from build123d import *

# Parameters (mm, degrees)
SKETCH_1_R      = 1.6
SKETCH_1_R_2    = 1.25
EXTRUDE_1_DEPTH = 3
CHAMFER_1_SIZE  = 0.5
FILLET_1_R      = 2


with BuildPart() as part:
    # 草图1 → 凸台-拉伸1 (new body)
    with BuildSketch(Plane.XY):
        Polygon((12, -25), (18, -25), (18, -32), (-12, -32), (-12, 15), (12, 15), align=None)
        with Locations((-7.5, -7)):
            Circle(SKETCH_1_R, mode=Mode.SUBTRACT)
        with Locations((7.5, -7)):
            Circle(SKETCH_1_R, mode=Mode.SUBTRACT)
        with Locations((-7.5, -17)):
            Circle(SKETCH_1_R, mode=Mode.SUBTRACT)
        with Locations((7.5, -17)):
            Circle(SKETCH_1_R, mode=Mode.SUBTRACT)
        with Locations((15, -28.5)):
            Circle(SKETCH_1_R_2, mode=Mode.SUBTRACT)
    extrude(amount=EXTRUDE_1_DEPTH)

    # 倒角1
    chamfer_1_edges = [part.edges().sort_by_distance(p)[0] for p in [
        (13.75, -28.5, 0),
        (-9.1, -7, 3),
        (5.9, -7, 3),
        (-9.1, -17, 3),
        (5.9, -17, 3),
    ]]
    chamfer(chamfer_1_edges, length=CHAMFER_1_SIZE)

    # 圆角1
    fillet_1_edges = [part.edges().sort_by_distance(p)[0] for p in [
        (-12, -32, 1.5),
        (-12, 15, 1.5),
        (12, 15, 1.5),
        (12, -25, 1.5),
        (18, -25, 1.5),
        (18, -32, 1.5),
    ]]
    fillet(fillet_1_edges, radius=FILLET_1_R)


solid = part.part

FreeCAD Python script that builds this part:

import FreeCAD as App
import Part
import Sketcher


def edges_at(feature, points):
    """Names of the edges that pass closest to the given points."""
    edges = feature.Shape.Edges
    near = lambda p: min(range(len(edges)), key=lambda i: edges[i].distToShape(Part.Vertex(*p))[0])
    return sorted({f"Edge{near(p) + 1}" for p in points})

doc = App.newDocument("Part")
body = doc.addObject("PartDesign::Body", "Body")

sketch1 = body.newObject("Sketcher::SketchObject", "Sketch")
sketch1.AttachmentSupport = (doc.getObject("XY_Plane"), [""])
sketch1.MapMode = "FlatFace"
sketch1.addGeometry(Part.LineSegment(App.Vector(18, -25, 0), App.Vector(12, -25, 0)), False)
sketch1.addGeometry(Part.LineSegment(App.Vector(12, -25, 0), App.Vector(12, 15, 0)), False)
sketch1.addGeometry(Part.LineSegment(App.Vector(12, 15, 0), App.Vector(-12, 15, 0)), False)
sketch1.addGeometry(Part.LineSegment(App.Vector(-12, 15, 0), App.Vector(-12, -32, 0)), False)
sketch1.addGeometry(Part.LineSegment(App.Vector(-12, -32, 0), App.Vector(18, -32, 0)), False)
sketch1.addGeometry(Part.LineSegment(App.Vector(18, -32, 0), App.Vector(18, -25, 0)), False)
sketch1.addGeometry(Part.Circle(App.Vector(15, -28.5, 0), App.Vector(0, 0, 1), 1.25), False)
sketch1.addGeometry(Part.Circle(App.Vector(7.5, -17, 0), App.Vector(0, 0, 1), 1.6), False)
sketch1.addGeometry(Part.Circle(App.Vector(7.5, -7, 0), App.Vector(0, 0, 1), 1.6), False)
sketch1.addGeometry(Part.Circle(App.Vector(-7.5, -17, 0), App.Vector(0, 0, 1), 1.6), False)
sketch1.addGeometry(Part.Circle(App.Vector(-7.5, -7, 0), App.Vector(0, 0, 1), 1.6), False)
sketch1.addConstraint(Sketcher.Constraint("Coincident", 0, 2, 1, 1))
sketch1.addConstraint(Sketcher.Constraint("Coincident", 1, 2, 2, 1))
sketch1.addConstraint(Sketcher.Constraint("Coincident", 2, 2, 3, 1))
sketch1.addConstraint(Sketcher.Constraint("Coincident", 3, 2, 4, 1))
sketch1.addConstraint(Sketcher.Constraint("Coincident", 4, 2, 5, 1))
sketch1.addConstraint(Sketcher.Constraint("Coincident", 5, 2, 0, 1))
sketch1.addConstraint(Sketcher.Constraint("Horizontal", 0))
sketch1.addConstraint(Sketcher.Constraint("Vertical", 1))
sketch1.addConstraint(Sketcher.Constraint("Horizontal", 2))
sketch1.addConstraint(Sketcher.Constraint("Vertical", 3))
sketch1.addConstraint(Sketcher.Constraint("Horizontal", 4))
sketch1.addConstraint(Sketcher.Constraint("Vertical", 5))
sketch1.addConstraint(Sketcher.Constraint("Equal", 7, 8))
sketch1.addConstraint(Sketcher.Constraint("Equal", 8, 9))
sketch1.addConstraint(Sketcher.Constraint("Equal", 9, 10))
sketch1.addConstraint(Sketcher.Constraint("Symmetric", 7, 3, 9, 3, -2))
sketch1.addConstraint(Sketcher.Constraint("Symmetric", 8, 3, 10, 3, -2))
sketch1.addConstraint(Sketcher.Constraint("Vertical", 7, 3, 8, 3))
sketch1.addConstraint(Sketcher.Constraint("Diameter", 6, 2.5))
sketch1.addConstraint(Sketcher.Constraint("Diameter", 7, 3.2))
sketch1.addConstraint(Sketcher.Constraint("DistanceX", 0, 2, 0, 1, 6.0))
sketch1.addConstraint(Sketcher.Constraint("DistanceX", 2, 2, 2, 1, 24.0))
sketch1.addConstraint(Sketcher.Constraint("DistanceY", 1, 1, 1, 2, 40.0))
sketch1.addConstraint(Sketcher.Constraint("DistanceY", 3, 2, 3, 1, 47.0))
sketch1.addConstraint(Sketcher.Constraint("DistanceX", -1, 1, 6, 3, 15.0))
sketch1.addConstraint(Sketcher.Constraint("DistanceY", 7, 3, -1, 1, 17.0))
sketch1.addConstraint(Sketcher.Constraint("DistanceY", 8, 3, -1, 1, 7.0))
sketch1.addConstraint(Sketcher.Constraint("DistanceX", -1, 1, 0, 2, 12.0))
sketch1.addConstraint(Sketcher.Constraint("DistanceY", 0, 2, -1, 1, 25.0))
sketch1.addConstraint(Sketcher.Constraint("DistanceX", 9, 3, 7, 3, 15.0))
sketch1.addConstraint(Sketcher.Constraint("DistanceY", 6, 3, -1, 1, 28.5))
pad1 = body.newObject("PartDesign::Pad", "Pad")
pad1.Profile = sketch1
pad1.Length = 3
doc.recompute()

chamfer = body.newObject("PartDesign::Chamfer", "Chamfer")
chamfer.Base = (pad1, edges_at(pad1, [
    (13.75, -28.5, 0),
    (-9.1, -7, 3),
    (5.9, -7, 3),
    (-9.1, -17, 3),
    (5.9, -17, 3),
]))
chamfer.Size = 0.5
doc.recompute()

fillet = body.newObject("PartDesign::Fillet", "Fillet")
fillet.Base = (chamfer, edges_at(chamfer, [
    (-12, -32, 1.5),
    (-12, 15, 1.5),
    (12, 15, 1.5),
    (12, -25, 1.5),
    (18, -25, 1.5),
    (18, -32, 1.5),
]))
fillet.Radius = 2

doc.recompute()
